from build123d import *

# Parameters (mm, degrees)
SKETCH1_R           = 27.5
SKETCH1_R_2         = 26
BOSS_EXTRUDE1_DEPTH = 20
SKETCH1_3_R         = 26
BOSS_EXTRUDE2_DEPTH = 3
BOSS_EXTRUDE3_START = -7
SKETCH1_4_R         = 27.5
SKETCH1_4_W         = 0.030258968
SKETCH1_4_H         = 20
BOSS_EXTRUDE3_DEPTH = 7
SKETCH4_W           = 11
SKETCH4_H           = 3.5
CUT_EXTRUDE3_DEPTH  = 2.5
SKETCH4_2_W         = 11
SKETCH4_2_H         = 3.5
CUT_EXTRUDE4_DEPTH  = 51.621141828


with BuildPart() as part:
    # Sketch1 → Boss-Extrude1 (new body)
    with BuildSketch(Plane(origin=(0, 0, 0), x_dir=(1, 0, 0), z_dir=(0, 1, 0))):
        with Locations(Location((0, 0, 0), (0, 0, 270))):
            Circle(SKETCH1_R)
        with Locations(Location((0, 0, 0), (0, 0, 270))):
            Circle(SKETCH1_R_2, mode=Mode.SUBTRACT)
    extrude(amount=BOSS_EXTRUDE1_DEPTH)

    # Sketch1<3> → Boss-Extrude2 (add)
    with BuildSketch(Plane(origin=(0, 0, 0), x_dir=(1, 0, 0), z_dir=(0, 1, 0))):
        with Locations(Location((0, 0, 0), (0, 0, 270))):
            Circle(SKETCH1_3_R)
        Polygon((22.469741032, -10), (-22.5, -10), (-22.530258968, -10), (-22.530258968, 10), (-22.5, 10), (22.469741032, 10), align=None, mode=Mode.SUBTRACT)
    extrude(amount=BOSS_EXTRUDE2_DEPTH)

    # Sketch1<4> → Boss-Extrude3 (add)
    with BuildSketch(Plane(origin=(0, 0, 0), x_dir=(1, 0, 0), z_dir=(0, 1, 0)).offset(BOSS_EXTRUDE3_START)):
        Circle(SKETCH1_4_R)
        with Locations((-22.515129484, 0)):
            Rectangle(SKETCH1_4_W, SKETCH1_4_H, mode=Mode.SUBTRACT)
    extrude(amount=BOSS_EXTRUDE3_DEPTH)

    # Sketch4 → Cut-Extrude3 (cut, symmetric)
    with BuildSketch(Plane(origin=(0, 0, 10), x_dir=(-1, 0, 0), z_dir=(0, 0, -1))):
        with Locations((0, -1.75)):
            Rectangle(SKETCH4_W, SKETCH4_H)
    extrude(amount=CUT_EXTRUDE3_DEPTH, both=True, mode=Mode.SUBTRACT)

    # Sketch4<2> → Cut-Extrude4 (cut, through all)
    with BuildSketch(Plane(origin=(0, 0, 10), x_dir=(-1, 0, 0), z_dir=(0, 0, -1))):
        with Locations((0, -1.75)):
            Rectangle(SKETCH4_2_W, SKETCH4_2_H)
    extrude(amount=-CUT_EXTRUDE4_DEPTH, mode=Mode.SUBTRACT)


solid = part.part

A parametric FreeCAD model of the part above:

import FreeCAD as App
import Part
import Sketcher

V = App.Vector


def add_polygon(sketch, points):
    """Adds a closed chain of lines whose ends are joined by coincident constraints."""
    first, n = sketch.GeometryCount, len(points)
    for a, b in zip(points, points[1:] + points[:1]):
        sketch.addGeometry(Part.LineSegment(App.Vector(*a, 0), App.Vector(*b, 0)), False)
    for i in range(n):
        sketch.addConstraint(Sketcher.Constraint("Coincident", first + i, 2, first + (i + 1) % n, 1))

doc = App.newDocument("Part")
body = doc.addObject("PartDesign::Body", "Body")

# Sketch on XZ plane
sketch1 = body.newObject("Sketcher::SketchObject", "Sketch")
sketch1.AttachmentSupport = (doc.getObject("XZ_Plane"), [""])
sketch1.MapMode = "FlatFace"
sketch1.addGeometry([
    Part.Circle(V(0, 0, 0), V(0, 0, 1), 28),
    Part.Circle(V(0, 0, 0), V(0, 0, 1), 26),
], False)
sketch1.addConstraint([
    Sketcher.Constraint("Coincident", 0, 3, -1, 1),
    Sketcher.Constraint("Coincident", 1, 3, -1, 1),
    Sketcher.Constraint("Diameter", 0, 55.0),
    Sketcher.Constraint("Diameter", 1, 52.0),
])
pad1 = body.newObject("PartDesign::Pad", "Pad")
pad1.Profile = sketch1
pad1.Length = 20
pad1.Reversed = True

# Sketch on XZ plane
sketch2 = body.newObject("Sketcher::SketchObject", "Sketch001")
sketch2.AttachmentSupport = (doc.getObject("XZ_Plane"), [""])
sketch2.MapMode = "FlatFace"
sketch2.addGeometry(Part.Circle(V(0, 0, 0), V(0, 0, 1), 26), False)  # 0
add_polygon(sketch2, [(22, -10), (22, 10), (-23, 10), (-23, -10)])  # lines 1-4
sketch2.addConstraint([
    Sketcher.Constraint("Vertical", 1),
    Sketcher.Constraint("Horizontal", 2),
    Sketcher.Constraint("Vertical", 3),
    Sketcher.Constraint("Horizontal", 4),
    Sketcher.Constraint("Coincident", 0, 3, -1, 1),
    Sketcher.Constraint("Diameter", 0, 52.0),
    Sketcher.Constraint("DistanceX", 2, 2, 2, 1, 45.0),
    Sketcher.Constraint("DistanceY", 1, 1, 1, 2, 20.0),
    Sketcher.Constraint("DistanceY", -1, 1, 1, 2, 10.0),
    Sketcher.Constraint("DistanceX", -1, 1, 1, 2, 22.469741),
])
pad2 = body.newObject("PartDesign::Pad", "Pad001")
pad2.Profile = sketch2
pad2.Length = 3
pad2.Reversed = True

# Sketch on XZ plane
sketch3 = body.newObject("Sketcher::SketchObject", "Sketch002")
sketch3.AttachmentSupport = (doc.getObject("XZ_Plane"), [""])
sketch3.MapMode = "FlatFace"
sketch3.AttachmentOffset = App.Placement(V(0, 0, 7), App.Rotation())
sketch3.addGeometry(Part.Circle(V(0, 0, 0), V(0, 0, 1), 27.5), False)  # 0
add_polygon(sketch3, [(-22.5, 10), (-22.53, 10), (-22.53, -10), (-22.5, -10)])  # lines 1-4
sketch3.addConstraint([
    Sketcher.Constraint("Horizontal", 1),
    Sketcher.Constraint("Vertical", 2),
    Sketcher.Constraint("Horizontal", 3),
    Sketcher.Constraint("Vertical", 4),
    Sketcher.Constraint("Coincident", 0, 3, -1, 1),
    Sketcher.Constraint("Diameter", 0, 55.0),
    Sketcher.Constraint("DistanceY", 2, 2, 2, 1, 20.0),
    Sketcher.Constraint("DistanceY", -1, 1, 1, 2, 10.0),
    Sketcher.Constraint("DistanceX", 3, 2, -1, 1, 22.5),
    Sketcher.Constraint("DistanceX", 1, 2, 1, 1, 0.030259),
])
pad3 = body.newObject("PartDesign::Pad", "Pad002")
pad3.Profile = sketch3
pad3.Length = 7
pad3.Reversed = True

# Sketch on XY plane
sketch4 = body.newObject("Sketcher::SketchObject", "Sketch003")
sketch4.AttachmentSupport = (doc.getObject("XY_Plane"), [""])
sketch4.MapMode = "FlatFace"
sketch4.AttachmentOffset = App.Placement(V(0, 0, 10), App.Rotation())
add_polygon(sketch4, [(5.5, 0), (5.5, -3.5), (-5.5, -3.5), (-5.5, 0)])  # lines 0-3
sketch4.addConstraint([
    Sketcher.Constraint("Vertical", 0),
    Sketcher.Constraint("Horizontal", 1),
    Sketcher.Constraint("Vertical", 2),
    Sketcher.Constraint("Horizontal", 3),
    Sketcher.Constraint("Symmetric", 2, 2, 3, 2, -1, 1),
    Sketcher.Constraint("DistanceX", 1, 2, 1, 1, 11.0),
    Sketcher.Constraint("DistanceY", 0, 2, 0, 1, 3.5),
])
pocket1 = body.newObject("PartDesign::Pocket", "Pocket")
pocket1.Profile = sketch4
pocket1.Length = 5
pocket1.Midplane = True

# Sketch on XY plane
sketch5 = body.newObject("Sketcher::SketchObject", "Sketch004")
sketch5.AttachmentSupport = (doc.getObject("XY_Plane"), [""])
sketch5.MapMode = "FlatFace"
sketch5.AttachmentOffset = App.Placement(V(0, 0, 10), App.Rotation())
add_polygon(sketch5, [(5.5, 0), (5.5, -3.5), (-5.5, -3.5), (-5.5, 0)])  # lines 0-3
sketch5.addConstraint([
    Sketcher.Constraint("Vertical", 0),
    Sketcher.Constraint("Horizontal", 1),
    Sketcher.Constraint("Vertical", 2),
    Sketcher.Constraint("Horizontal", 3),
    Sketcher.Constraint("Symmetric", 2, 2, 3, 2, -1, 1),
    Sketcher.Constraint("DistanceX", 1, 2, 1, 1, 11.0),
    Sketcher.Constraint("DistanceY", 0, 2, 0, 1, 3.5),
])
pocket2 = body.newObject("PartDesign::Pocket", "Pocket001")
pocket2.Profile = sketch5
pocket2.Type = "ThroughAll"
pocket2.Reversed = True

doc.recompute()
